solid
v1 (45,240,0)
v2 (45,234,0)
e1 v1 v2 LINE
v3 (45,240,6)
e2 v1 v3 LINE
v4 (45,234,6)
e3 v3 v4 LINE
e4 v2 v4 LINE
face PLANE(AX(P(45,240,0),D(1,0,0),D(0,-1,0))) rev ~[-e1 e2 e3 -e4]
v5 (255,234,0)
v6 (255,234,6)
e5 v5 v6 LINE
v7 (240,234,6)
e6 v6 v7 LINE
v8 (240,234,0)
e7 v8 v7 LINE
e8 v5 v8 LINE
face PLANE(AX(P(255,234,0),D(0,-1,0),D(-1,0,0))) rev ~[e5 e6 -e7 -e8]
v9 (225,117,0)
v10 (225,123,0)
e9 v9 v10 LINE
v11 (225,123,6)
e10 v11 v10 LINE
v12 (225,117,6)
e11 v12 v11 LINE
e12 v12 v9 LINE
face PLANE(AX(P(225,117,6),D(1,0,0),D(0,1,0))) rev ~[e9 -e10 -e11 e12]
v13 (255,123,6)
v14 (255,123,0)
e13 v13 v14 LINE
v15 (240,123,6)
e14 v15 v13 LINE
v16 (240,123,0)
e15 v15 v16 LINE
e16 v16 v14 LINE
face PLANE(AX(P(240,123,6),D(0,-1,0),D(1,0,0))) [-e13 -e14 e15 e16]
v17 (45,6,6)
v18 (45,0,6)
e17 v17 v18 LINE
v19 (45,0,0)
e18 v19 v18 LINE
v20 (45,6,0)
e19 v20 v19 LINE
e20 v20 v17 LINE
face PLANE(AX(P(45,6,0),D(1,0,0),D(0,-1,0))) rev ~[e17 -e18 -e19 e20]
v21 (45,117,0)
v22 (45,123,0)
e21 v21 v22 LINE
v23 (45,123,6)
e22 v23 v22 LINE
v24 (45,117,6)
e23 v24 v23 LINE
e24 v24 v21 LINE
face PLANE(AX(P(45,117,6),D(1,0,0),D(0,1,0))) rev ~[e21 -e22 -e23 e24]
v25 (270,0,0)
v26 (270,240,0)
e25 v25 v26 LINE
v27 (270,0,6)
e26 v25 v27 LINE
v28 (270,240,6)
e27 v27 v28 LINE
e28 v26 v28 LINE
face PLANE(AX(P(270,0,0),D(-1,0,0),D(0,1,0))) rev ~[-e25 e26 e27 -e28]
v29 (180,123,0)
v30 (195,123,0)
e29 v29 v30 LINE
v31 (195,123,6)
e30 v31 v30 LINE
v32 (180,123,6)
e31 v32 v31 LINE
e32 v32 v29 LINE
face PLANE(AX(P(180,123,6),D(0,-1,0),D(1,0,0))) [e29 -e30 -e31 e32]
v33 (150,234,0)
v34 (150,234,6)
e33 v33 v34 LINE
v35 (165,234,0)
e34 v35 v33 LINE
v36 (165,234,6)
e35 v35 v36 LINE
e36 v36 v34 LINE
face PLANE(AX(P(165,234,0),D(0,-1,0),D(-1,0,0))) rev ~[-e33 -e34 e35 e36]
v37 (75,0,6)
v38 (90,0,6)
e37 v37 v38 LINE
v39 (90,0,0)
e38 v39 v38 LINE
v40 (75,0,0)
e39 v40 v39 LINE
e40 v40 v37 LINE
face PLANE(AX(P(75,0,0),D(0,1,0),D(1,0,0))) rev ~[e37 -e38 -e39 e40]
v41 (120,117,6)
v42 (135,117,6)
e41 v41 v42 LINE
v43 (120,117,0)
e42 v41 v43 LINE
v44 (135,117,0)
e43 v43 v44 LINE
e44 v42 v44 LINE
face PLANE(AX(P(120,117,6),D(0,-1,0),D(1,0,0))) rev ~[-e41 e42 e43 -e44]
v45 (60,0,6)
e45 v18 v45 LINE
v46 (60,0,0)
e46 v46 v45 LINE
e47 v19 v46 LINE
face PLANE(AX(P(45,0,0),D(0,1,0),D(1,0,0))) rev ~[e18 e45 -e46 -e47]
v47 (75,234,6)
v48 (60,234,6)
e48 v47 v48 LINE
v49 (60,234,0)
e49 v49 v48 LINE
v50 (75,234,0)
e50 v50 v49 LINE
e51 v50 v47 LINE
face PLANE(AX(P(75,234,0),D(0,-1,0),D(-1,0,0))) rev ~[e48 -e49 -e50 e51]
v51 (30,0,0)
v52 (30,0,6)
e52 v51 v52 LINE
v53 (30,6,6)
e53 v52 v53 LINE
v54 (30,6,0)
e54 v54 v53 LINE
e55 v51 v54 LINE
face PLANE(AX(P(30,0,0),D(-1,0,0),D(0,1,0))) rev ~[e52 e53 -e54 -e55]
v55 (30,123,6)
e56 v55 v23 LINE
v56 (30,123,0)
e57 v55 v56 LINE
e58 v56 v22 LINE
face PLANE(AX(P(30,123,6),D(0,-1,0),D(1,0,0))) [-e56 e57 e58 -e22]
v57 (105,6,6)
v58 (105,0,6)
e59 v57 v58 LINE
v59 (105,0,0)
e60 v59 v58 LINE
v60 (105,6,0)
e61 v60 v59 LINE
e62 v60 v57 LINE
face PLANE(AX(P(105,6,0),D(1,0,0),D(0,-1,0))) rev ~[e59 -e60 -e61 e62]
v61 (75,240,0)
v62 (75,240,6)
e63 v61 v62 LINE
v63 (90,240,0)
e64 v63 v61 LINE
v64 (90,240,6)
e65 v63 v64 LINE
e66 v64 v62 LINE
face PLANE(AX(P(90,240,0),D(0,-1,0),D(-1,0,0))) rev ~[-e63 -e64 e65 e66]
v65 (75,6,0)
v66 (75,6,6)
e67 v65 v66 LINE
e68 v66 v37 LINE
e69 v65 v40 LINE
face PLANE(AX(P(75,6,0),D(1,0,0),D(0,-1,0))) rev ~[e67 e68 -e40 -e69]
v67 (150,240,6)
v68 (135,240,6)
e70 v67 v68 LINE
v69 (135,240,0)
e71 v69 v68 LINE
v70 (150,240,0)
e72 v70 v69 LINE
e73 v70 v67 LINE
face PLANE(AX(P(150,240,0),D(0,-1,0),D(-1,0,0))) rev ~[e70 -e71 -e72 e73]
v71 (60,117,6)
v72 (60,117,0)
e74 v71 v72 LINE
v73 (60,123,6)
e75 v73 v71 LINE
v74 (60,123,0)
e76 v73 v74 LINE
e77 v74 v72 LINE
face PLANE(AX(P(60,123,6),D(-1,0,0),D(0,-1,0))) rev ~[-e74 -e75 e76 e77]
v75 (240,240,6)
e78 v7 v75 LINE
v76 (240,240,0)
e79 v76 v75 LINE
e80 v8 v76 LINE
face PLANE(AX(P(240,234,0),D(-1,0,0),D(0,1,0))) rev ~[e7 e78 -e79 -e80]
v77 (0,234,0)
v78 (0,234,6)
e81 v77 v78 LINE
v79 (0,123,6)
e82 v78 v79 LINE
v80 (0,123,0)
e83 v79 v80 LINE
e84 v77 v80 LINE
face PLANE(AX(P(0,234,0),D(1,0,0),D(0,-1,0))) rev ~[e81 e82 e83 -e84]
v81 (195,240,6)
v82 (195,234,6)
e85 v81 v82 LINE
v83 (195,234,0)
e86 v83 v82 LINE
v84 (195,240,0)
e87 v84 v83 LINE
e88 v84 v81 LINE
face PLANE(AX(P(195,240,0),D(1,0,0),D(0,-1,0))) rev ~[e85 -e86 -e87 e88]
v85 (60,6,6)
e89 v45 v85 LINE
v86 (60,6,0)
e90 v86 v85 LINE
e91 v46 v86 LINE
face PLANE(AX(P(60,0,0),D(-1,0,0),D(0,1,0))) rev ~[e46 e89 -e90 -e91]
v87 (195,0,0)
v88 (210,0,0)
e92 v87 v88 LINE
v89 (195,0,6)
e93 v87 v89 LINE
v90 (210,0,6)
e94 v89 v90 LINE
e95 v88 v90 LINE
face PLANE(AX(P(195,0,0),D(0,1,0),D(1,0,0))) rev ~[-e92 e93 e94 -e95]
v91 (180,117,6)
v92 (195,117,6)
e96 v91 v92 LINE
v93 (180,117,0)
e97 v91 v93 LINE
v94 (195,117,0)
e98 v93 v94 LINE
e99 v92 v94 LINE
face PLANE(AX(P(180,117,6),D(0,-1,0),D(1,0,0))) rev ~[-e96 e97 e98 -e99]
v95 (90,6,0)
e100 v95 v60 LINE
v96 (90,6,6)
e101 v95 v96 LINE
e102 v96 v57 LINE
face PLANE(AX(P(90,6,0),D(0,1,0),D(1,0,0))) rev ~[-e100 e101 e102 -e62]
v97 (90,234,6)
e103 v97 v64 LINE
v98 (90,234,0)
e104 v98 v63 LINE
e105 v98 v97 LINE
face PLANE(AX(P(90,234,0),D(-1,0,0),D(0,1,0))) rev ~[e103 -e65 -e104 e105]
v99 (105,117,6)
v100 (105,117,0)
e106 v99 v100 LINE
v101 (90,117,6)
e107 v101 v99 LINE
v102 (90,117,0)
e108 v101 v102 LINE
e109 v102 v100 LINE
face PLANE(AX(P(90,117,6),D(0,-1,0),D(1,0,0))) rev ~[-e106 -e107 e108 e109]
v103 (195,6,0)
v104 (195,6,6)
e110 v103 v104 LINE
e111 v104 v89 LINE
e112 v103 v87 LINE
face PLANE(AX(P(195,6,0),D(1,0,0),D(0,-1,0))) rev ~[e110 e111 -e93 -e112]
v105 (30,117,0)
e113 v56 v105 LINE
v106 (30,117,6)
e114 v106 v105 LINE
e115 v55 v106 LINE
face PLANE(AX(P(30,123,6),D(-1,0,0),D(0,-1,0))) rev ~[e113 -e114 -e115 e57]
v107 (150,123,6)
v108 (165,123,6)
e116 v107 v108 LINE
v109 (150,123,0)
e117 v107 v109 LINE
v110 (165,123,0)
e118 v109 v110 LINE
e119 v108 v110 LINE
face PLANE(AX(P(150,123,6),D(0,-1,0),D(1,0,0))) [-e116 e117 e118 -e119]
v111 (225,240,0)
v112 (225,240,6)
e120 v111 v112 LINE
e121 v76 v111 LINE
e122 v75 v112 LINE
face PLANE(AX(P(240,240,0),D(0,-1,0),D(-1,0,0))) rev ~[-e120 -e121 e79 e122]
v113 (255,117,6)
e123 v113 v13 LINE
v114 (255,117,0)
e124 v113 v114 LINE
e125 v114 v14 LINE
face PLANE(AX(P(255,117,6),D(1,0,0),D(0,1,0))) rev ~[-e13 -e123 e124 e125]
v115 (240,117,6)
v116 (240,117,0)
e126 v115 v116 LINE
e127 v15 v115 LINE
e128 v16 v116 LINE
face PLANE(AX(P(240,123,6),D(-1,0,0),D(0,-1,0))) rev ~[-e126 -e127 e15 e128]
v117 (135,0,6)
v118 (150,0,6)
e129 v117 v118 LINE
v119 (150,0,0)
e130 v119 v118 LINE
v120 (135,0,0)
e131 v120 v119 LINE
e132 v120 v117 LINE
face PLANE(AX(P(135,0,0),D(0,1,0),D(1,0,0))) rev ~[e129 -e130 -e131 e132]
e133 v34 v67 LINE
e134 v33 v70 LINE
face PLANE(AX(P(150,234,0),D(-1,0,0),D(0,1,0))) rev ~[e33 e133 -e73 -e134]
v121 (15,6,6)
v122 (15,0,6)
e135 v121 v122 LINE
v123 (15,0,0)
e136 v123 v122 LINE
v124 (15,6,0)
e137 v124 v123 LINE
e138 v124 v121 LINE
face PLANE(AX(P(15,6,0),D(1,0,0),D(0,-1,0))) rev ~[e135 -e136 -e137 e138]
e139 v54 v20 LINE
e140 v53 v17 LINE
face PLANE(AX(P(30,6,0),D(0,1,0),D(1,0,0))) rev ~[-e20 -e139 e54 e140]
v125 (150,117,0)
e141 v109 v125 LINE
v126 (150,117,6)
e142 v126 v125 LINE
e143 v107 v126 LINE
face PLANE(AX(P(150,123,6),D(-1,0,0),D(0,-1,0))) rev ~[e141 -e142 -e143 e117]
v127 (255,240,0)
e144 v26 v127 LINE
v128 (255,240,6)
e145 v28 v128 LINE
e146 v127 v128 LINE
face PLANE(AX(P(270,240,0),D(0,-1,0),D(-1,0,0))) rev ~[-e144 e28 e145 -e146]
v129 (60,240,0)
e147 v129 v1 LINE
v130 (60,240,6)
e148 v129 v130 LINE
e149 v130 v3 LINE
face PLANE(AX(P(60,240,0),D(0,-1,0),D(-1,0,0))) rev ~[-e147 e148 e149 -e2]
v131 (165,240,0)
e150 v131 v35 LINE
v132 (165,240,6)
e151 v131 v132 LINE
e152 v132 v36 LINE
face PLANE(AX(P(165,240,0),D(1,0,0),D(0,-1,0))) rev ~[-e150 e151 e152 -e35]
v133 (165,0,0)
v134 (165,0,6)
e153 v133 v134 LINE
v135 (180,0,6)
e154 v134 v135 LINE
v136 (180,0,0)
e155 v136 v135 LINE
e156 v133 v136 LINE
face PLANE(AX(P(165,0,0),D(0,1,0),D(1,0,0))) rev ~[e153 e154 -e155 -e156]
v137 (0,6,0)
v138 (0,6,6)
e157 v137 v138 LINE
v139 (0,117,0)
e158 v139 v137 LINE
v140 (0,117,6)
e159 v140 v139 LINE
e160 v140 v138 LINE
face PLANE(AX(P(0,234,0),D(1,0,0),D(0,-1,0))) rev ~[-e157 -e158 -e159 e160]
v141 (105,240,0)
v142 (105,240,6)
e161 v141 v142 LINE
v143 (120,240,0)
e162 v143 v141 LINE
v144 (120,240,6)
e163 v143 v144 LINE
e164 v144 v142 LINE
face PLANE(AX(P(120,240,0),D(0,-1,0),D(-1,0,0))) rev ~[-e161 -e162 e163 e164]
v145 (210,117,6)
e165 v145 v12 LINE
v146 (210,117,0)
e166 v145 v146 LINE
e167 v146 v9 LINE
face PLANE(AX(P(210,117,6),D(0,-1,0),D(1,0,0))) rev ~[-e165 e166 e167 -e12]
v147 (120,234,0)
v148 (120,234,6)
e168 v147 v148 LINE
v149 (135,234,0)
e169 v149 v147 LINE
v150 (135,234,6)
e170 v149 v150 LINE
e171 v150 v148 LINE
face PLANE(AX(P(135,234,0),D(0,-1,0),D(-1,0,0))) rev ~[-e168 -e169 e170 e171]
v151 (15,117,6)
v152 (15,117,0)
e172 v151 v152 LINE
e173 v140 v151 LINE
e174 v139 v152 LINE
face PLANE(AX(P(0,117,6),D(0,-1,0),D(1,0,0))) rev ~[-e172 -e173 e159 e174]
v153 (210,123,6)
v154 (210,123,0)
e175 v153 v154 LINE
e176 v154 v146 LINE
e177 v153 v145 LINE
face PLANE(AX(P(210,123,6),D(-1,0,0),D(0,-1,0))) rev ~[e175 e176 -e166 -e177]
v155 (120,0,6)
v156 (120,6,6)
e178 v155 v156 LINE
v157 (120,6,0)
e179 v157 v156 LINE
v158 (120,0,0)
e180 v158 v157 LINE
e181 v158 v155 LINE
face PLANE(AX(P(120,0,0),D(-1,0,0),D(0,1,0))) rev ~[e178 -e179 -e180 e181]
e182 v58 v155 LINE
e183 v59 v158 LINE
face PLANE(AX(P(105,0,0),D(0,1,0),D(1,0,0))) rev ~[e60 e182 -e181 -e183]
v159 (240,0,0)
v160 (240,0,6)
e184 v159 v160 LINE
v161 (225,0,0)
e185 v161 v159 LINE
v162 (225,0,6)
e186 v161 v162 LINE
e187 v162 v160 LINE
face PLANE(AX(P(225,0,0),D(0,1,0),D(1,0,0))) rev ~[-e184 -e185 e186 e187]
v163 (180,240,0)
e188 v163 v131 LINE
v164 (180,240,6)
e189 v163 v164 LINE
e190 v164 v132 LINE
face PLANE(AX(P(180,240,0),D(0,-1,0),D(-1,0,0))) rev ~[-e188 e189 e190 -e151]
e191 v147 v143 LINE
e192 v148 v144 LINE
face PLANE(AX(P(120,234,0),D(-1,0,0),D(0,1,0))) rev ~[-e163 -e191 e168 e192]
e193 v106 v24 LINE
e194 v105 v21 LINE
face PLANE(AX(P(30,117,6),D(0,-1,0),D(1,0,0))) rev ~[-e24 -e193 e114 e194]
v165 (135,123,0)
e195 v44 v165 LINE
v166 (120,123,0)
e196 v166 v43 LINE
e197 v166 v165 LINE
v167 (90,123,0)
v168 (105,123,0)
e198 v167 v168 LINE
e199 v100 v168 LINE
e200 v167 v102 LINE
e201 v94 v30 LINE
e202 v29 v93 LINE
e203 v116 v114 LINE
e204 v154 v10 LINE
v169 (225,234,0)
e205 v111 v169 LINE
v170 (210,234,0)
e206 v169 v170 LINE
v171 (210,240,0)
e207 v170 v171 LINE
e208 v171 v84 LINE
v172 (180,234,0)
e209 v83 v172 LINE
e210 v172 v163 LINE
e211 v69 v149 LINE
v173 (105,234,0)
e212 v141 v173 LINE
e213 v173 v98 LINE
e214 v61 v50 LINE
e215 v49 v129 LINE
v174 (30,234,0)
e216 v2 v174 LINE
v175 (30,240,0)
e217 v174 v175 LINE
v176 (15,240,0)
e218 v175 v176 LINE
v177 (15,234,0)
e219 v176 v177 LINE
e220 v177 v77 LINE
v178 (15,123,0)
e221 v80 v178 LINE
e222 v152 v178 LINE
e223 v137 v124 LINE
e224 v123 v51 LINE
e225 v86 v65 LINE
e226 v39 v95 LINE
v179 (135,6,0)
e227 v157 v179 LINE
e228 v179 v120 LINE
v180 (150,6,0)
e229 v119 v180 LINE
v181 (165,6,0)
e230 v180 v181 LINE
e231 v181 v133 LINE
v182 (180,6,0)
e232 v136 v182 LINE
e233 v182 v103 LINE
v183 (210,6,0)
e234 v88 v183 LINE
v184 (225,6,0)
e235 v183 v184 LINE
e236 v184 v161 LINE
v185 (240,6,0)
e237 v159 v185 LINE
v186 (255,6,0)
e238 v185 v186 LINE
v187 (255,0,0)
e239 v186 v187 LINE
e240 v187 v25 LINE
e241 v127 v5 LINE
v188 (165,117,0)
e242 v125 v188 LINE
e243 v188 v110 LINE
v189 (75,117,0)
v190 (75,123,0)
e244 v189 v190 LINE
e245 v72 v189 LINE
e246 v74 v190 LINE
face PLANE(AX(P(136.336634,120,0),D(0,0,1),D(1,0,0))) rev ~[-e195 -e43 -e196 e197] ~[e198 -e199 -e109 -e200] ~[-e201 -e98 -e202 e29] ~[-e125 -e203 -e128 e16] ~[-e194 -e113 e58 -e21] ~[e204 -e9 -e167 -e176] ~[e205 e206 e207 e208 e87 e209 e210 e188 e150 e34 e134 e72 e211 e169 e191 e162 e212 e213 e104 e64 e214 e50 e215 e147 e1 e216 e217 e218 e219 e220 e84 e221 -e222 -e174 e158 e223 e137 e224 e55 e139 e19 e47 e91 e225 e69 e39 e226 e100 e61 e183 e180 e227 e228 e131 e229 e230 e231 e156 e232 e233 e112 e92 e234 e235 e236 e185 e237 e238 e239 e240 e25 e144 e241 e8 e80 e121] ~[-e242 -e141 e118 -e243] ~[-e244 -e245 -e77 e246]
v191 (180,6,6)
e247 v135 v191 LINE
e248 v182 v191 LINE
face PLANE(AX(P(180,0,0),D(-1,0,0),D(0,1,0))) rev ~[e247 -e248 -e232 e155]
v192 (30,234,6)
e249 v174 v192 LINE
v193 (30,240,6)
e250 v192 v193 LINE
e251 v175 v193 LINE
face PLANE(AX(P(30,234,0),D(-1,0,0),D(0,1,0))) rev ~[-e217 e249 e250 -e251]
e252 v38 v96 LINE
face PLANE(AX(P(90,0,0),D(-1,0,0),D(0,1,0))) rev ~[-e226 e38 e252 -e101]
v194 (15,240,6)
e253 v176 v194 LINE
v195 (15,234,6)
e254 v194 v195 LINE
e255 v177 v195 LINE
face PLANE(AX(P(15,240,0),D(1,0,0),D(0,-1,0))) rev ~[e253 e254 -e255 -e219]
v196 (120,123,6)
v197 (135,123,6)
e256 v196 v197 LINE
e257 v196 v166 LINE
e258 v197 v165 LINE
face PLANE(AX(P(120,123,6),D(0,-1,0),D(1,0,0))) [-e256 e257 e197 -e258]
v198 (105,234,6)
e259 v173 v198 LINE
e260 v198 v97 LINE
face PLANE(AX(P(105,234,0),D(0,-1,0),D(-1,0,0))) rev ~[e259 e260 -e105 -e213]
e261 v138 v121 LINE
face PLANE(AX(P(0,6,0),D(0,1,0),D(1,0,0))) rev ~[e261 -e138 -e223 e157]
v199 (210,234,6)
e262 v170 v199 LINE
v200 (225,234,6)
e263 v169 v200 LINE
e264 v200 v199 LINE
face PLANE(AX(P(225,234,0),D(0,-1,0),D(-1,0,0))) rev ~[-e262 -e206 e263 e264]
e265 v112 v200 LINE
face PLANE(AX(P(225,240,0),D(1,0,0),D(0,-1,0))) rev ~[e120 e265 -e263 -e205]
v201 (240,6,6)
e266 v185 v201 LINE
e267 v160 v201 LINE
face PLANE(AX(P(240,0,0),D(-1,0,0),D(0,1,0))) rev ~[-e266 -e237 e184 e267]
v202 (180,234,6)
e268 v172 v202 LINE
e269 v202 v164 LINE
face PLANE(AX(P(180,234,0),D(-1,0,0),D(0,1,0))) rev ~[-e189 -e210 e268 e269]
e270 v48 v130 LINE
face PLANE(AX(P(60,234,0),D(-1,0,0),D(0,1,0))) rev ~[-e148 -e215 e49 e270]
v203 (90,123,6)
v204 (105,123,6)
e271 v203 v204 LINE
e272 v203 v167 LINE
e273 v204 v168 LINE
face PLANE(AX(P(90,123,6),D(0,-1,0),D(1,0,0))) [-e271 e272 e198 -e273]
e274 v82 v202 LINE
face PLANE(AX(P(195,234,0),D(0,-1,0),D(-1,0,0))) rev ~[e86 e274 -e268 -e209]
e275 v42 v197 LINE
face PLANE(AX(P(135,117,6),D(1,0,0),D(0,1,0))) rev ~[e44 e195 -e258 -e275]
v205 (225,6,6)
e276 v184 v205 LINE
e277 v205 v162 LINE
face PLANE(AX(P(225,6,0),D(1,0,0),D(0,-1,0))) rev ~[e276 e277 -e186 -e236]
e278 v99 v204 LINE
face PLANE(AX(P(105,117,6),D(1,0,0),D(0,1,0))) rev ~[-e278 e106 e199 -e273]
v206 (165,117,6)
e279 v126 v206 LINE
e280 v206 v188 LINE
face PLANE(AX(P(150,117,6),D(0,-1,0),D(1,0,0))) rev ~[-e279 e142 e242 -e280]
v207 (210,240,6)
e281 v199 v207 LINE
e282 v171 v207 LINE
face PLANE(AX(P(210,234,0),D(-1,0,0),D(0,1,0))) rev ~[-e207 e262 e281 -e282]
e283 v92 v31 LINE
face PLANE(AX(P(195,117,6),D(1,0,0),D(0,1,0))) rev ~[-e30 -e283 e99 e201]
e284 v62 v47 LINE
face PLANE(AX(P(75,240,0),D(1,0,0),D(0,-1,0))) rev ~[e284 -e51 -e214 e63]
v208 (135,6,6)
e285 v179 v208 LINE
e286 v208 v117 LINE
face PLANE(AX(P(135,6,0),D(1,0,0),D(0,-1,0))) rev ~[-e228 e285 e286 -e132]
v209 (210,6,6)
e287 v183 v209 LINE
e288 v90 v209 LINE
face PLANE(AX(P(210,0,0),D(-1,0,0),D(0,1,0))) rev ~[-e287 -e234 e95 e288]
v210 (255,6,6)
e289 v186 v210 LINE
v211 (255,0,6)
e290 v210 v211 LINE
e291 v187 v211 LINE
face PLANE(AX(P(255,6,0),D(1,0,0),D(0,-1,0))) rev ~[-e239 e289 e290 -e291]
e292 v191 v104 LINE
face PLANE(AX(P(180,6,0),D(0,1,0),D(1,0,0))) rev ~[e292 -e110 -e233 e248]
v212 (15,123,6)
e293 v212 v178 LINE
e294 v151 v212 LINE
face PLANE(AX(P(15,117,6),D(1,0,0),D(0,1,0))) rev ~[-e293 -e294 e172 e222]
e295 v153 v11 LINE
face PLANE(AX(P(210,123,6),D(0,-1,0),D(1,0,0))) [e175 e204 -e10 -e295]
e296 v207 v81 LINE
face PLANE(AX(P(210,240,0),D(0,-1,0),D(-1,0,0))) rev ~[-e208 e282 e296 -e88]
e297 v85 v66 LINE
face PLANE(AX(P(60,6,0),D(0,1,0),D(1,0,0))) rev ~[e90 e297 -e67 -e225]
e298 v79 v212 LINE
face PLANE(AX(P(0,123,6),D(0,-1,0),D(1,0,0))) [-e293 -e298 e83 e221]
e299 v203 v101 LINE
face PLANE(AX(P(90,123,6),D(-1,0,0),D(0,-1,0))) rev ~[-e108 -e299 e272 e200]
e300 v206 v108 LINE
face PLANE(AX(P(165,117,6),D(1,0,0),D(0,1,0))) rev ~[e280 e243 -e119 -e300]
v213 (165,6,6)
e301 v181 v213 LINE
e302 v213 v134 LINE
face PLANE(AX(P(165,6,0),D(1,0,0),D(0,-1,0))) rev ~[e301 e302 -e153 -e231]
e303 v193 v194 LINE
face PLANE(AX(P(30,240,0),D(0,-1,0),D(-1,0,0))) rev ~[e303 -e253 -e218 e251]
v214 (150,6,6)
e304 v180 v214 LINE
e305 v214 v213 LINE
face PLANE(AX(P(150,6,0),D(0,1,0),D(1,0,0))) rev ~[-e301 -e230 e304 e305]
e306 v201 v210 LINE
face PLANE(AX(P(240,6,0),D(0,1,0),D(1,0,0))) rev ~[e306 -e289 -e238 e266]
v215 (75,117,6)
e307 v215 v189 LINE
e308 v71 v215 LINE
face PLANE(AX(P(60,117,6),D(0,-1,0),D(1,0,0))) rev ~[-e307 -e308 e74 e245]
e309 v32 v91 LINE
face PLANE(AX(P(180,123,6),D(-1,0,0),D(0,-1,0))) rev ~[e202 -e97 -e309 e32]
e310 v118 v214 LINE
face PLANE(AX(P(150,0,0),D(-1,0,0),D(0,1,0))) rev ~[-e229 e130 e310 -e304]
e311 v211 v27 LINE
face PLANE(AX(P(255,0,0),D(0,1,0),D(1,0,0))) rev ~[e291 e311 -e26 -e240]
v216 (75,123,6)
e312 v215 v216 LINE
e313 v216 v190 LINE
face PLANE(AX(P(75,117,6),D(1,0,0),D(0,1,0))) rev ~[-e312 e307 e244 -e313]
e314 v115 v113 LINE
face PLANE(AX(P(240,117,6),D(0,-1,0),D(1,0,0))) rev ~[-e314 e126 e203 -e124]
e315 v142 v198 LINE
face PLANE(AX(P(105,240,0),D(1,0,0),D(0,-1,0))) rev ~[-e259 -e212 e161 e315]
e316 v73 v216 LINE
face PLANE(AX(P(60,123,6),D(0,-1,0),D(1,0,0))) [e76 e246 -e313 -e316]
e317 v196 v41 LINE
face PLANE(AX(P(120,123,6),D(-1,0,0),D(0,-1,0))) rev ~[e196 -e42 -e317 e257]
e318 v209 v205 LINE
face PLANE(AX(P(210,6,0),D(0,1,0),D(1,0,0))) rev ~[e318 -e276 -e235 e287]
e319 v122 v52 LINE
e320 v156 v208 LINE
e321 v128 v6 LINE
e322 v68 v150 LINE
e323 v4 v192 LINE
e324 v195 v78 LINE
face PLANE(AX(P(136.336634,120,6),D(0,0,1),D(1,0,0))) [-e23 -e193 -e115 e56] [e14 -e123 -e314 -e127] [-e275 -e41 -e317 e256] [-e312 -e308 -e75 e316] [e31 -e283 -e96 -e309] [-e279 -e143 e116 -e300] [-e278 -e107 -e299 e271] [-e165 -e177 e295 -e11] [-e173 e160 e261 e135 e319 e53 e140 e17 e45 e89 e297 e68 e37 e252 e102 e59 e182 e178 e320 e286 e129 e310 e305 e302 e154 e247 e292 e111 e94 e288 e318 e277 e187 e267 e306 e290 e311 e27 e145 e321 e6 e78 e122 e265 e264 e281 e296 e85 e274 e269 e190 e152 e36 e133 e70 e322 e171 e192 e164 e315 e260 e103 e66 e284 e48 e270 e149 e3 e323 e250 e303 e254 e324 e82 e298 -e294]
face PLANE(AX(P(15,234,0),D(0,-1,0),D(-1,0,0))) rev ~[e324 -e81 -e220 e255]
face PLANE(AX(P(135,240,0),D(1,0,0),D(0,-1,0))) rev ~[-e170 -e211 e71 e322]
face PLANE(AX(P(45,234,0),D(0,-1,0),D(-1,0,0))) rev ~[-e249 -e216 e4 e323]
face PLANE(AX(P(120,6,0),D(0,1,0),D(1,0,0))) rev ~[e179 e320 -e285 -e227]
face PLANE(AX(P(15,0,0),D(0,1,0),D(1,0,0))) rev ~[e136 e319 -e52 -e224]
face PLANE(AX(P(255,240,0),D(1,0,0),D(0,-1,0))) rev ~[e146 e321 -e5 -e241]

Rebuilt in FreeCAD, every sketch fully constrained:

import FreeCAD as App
import Part
import Sketcher

doc = App.newDocument("Part")
body = doc.addObject("PartDesign::Body", "Body")

# Sketch on XY plane
sketch1 = doc.addObject("Sketcher::SketchObject", "Sketch")
body.addObject(sketch1)
sketch1.AttachmentSupport = (doc.XY_Plane, [""])
sketch1.MapMode = "FlatFace"
sketch1.addGeometry([
    Part.LineSegment(App.Vector(15, 6, 0), App.Vector(15, 0, 0)),  # 0
    Part.LineSegment(App.Vector(15, 0, 0), App.Vector(30, 0, 0)),  # 1
    Part.LineSegment(App.Vector(30, 0, 0), App.Vector(30, 6, 0)),  # 2
    Part.LineSegment(App.Vector(30, 6, 0), App.Vector(45, 6, 0)),  # 3
    Part.LineSegment(App.Vector(45, 6, 0), App.Vector(45, 0, 0)),  # 4
    Part.LineSegment(App.Vector(45, 0, 0), App.Vector(60, 0, 0)),  # 5
    Part.LineSegment(App.Vector(60, 0, 0), App.Vector(60, 6, 0)),  # 6
    Part.LineSegment(App.Vector(60, 6, 0), App.Vector(75, 6, 0)),  # 7
    Part.LineSegment(App.Vector(75, 6, 0), App.Vector(75, 0, 0)),  # 8
    Part.LineSegment(App.Vector(75, 0, 0), App.Vector(90, 0, 0)),  # 9
    Part.LineSegment(App.Vector(90, 0, 0), App.Vector(90, 6, 0)),  # 10
    Part.LineSegment(App.Vector(90, 6, 0), App.Vector(105, 6, 0)),  # 11
    Part.LineSegment(App.Vector(105, 6, 0), App.Vector(105, 0, 0)),  # 12
    Part.LineSegment(App.Vector(105, 0, 0), App.Vector(120, 0, 0)),  # 13
    Part.LineSegment(App.Vector(120, 0, 0), App.Vector(120, 6, 0)),  # 14
    Part.LineSegment(App.Vector(120, 6, 0), App.Vector(135, 6, 0)),  # 15
    Part.LineSegment(App.Vector(135, 6, 0), App.Vector(135, 0, 0)),  # 16
    Part.LineSegment(App.Vector(135, 0, 0), App.Vector(150, 0, 0)),  # 17
    Part.LineSegment(App.Vector(150, 0, 0), App.Vector(150, 6, 0)),  # 18
    Part.LineSegment(App.Vector(150, 6, 0), App.Vector(165, 6, 0)),  # 19
    Part.LineSegment(App.Vector(165, 6, 0), App.Vector(165, 0, 0)),  # 20
    Part.LineSegment(App.Vector(165, 0, 0), App.Vector(180, 0, 0)),  # 21
    Part.LineSegment(App.Vector(180, 0, 0), App.Vector(180, 6, 0)),  # 22
    Part.LineSegment(App.Vector(180, 6, 0), App.Vector(195, 6, 0)),  # 23
    Part.LineSegment(App.Vector(195, 6, 0), App.Vector(195, 0, 0)),  # 24
    Part.LineSegment(App.Vector(195, 0, 0), App.Vector(210, 0, 0)),  # 25
    Part.LineSegment(App.Vector(210, 0, 0), App.Vector(210, 6, 0)),  # 26
    Part.LineSegment(App.Vector(210, 6, 0), App.Vector(225, 6, 0)),  # 27
    Part.LineSegment(App.Vector(225, 6, 0), App.Vector(225, 0, 0)),  # 28
    Part.LineSegment(App.Vector(225, 0, 0), App.Vector(240, 0, 0)),  # 29
    Part.LineSegment(App.Vector(240, 0, 0), App.Vector(240, 6, 0)),  # 30
    Part.LineSegment(App.Vector(240, 6, 0), App.Vector(255, 6, 0)),  # 31
    Part.LineSegment(App.Vector(255, 6, 0), App.Vector(255, 0, 0)),  # 32
    Part.LineSegment(App.Vector(255, 0, 0), App.Vector(270, 0, 0)),  # 33
    Part.LineSegment(App.Vector(270, 0, 0), App.Vector(270, 240, 0)),  # 34
    Part.LineSegment(App.Vector(270, 240, 0), App.Vector(255, 240, 0)),  # 35
    Part.LineSegment(App.Vector(255, 240, 0), App.Vector(255, 234, 0)),  # 36
    Part.LineSegment(App.Vector(255, 234, 0), App.Vector(240, 234, 0)),  # 37
    Part.LineSegment(App.Vector(240, 234, 0), App.Vector(240, 240, 0)),  # 38
    Part.LineSegment(App.Vector(240, 240, 0), App.Vector(225, 240, 0)),  # 39
    Part.LineSegment(App.Vector(225, 240, 0), App.Vector(225, 234, 0)),  # 40
    Part.LineSegment(App.Vector(225, 234, 0), App.Vector(210, 234, 0)),  # 41
    Part.LineSegment(App.Vector(210, 234, 0), App.Vector(210, 240, 0)),  # 42
    Part.LineSegment(App.Vector(210, 240, 0), App.Vector(195, 240, 0)),  # 43
    Part.LineSegment(App.Vector(195, 240, 0), App.Vector(195, 234, 0)),  # 44
    Part.LineSegment(App.Vector(195, 234, 0), App.Vector(180, 234, 0)),  # 45
    Part.LineSegment(App.Vector(180, 234, 0), App.Vector(180, 240, 0)),  # 46
    Part.LineSegment(App.Vector(180, 240, 0), App.Vector(165, 240, 0)),  # 47
    Part.LineSegment(App.Vector(165, 240, 0), App.Vector(165, 234, 0)),  # 48
    Part.LineSegment(App.Vector(165, 234, 0), App.Vector(150, 234, 0)),  # 49
    Part.LineSegment(App.Vector(150, 234, 0), App.Vector(150, 240, 0)),  # 50
    Part.LineSegment(App.Vector(150, 240, 0), App.Vector(135, 240, 0)),  # 51
    Part.LineSegment(App.Vector(135, 240, 0), App.Vector(135, 234, 0)),  # 52
    Part.LineSegment(App.Vector(135, 234, 0), App.Vector(120, 234, 0)),  # 53
    Part.LineSegment(App.Vector(120, 234, 0), App.Vector(120, 240, 0)),  # 54
    Part.LineSegment(App.Vector(120, 240, 0), App.Vector(105, 240, 0)),  # 55
    Part.LineSegment(App.Vector(105, 240, 0), App.Vector(105, 234, 0)),  # 56
    Part.LineSegment(App.Vector(105, 234, 0), App.Vector(90, 234, 0)),  # 57
    Part.LineSegment(App.Vector(90, 234, 0), App.Vector(90, 240, 0)),  # 58
    Part.LineSegment(App.Vector(90, 240, 0), App.Vector(75, 240, 0)),  # 59
    Part.LineSegment(App.Vector(75, 240, 0), App.Vector(75, 234, 0)),  # 60
    Part.LineSegment(App.Vector(75, 234, 0), App.Vector(60, 234, 0)),  # 61
    Part.LineSegment(App.Vector(60, 234, 0), App.Vector(60, 240, 0)),  # 62
    Part.LineSegment(App.Vector(60, 240, 0), App.Vector(45, 240, 0)),  # 63
    Part.LineSegment(App.Vector(45, 240, 0), App.Vector(45, 234, 0)),  # 64
    Part.LineSegment(App.Vector(45, 234, 0), App.Vector(30, 234, 0)),  # 65
    Part.LineSegment(App.Vector(30, 234, 0), App.Vector(30, 240, 0)),  # 66
    Part.LineSegment(App.Vector(30, 240, 0), App.Vector(15, 240, 0)),  # 67
    Part.LineSegment(App.Vector(15, 240, 0), App.Vector(15, 234, 0)),  # 68
    Part.LineSegment(App.Vector(15, 234, 0), App.Vector(0, 234, 0)),  # 69
    Part.LineSegment(App.Vector(0, 234, 0), App.Vector(0, 6, 0)),  # 70
    Part.LineSegment(App.Vector(0, 6, 0), App.Vector(15, 6, 0)),  # 71
], False)
sketch1.addConstraint([
    Sketcher.Constraint("Coincident", 0, 2, 1, 1),
    Sketcher.Constraint("Coincident", 1, 2, 2, 1),
    Sketcher.Constraint("Coincident", 2, 2, 3, 1),
    Sketcher.Constraint("Coincident", 3, 2, 4, 1),
    Sketcher.Constraint("Coincident", 4, 2, 5, 1),
    Sketcher.Constraint("Coincident", 5, 2, 6, 1),
    Sketcher.Constraint("Coincident", 6, 2, 7, 1),
    Sketcher.Constraint("Coincident", 7, 2, 8, 1),
    Sketcher.Constraint("Coincident", 8, 2, 9, 1),
    Sketcher.Constraint("Coincident", 9, 2, 10, 1),
    Sketcher.Constraint("Coincident", 10, 2, 11, 1),
    Sketcher.Constraint("Coincident", 11, 2, 12, 1),
    Sketcher.Constraint("Coincident", 12, 2, 13, 1),
    Sketcher.Constraint("Coincident", 13, 2, 14, 1),
    Sketcher.Constraint("Coincident", 14, 2, 15, 1),
    Sketcher.Constraint("Coincident", 15, 2, 16, 1),
    Sketcher.Constraint("Coincident", 16, 2, 17, 1),
    Sketcher.Constraint("Coincident", 17, 2, 18, 1),
    Sketcher.Constraint("Coincident", 18, 2, 19, 1),
    Sketcher.Constraint("Coincident", 19, 2, 20, 1),
    Sketcher.Constraint("Coincident", 20, 2, 21, 1),
    Sketcher.Constraint("Coincident", 21, 2, 22, 1),
    Sketcher.Constraint("Coincident", 22, 2, 23, 1),
    Sketcher.Constraint("Coincident", 23, 2, 24, 1),
    Sketcher.Constraint("Coincident", 24, 2, 25, 1),
    Sketcher.Constraint("Coincident", 25, 2, 26, 1),
    Sketcher.Constraint("Coincident", 26, 2, 27, 1),
    Sketcher.Constraint("Coincident", 27, 2, 28, 1),
    Sketcher.Constraint("Coincident", 28, 2, 29, 1),
    Sketcher.Constraint("Coincident", 29, 2, 30, 1),
    Sketcher.Constraint("Coincident", 30, 2, 31, 1),
    Sketcher.Constraint("Coincident", 31, 2, 32, 1),
    Sketcher.Constraint("Coincident", 32, 2, 33, 1),
    Sketcher.Constraint("Coincident", 33, 2, 34, 1),
    Sketcher.Constraint("Coincident", 34, 2, 35, 1),
    Sketcher.Constraint("Coincident", 35, 2, 36, 1),
    Sketcher.Constraint("Coincident", 36, 2, 37, 1),
    Sketcher.Constraint("Coincident", 37, 2, 38, 1),
    Sketcher.Constraint("Coincident", 38, 2, 39, 1),
    Sketcher.Constraint("Coincident", 39, 2, 40, 1),
    Sketcher.Constraint("Coincident", 40, 2, 41, 1),
    Sketcher.Constraint("Coincident", 41, 2, 42, 1),
    Sketcher.Constraint("Coincident", 42, 2, 43, 1),
    Sketcher.Constraint("Coincident", 43, 2, 44, 1),
    Sketcher.Constraint("Coincident", 44, 2, 45, 1),
    Sketcher.Constraint("Coincident", 45, 2, 46, 1),
    Sketcher.Constraint("Coincident", 46, 2, 47, 1),
    Sketcher.Constraint("Coincident", 47, 2, 48, 1),
    Sketcher.Constraint("Coincident", 48, 2, 49, 1),
    Sketcher.Constraint("Coincident", 49, 2, 50, 1),
    Sketcher.Constraint("Coincident", 50, 2, 51, 1),
    Sketcher.Constraint("Coincident", 51, 2, 52, 1),
    Sketcher.Constraint("Coincident", 52, 2, 53, 1),
    Sketcher.Constraint("Coincident", 53, 2, 54, 1),
    Sketcher.Constraint("Coincident", 54, 2, 55, 1),
    Sketcher.Constraint("Coincident", 55, 2, 56, 1),
    Sketcher.Constraint("Coincident", 56, 2, 57, 1),
    Sketcher.Constraint("Coincident", 57, 2, 58, 1),
    Sketcher.Constraint("Coincident", 58, 2, 59, 1),
    Sketcher.Constraint("Coincident", 59, 2, 60, 1),
    Sketcher.Constraint("Coincident", 60, 2, 61, 1),
    Sketcher.Constraint("Coincident", 61, 2, 62, 1),
    Sketcher.Constraint("Coincident", 62, 2, 63, 1),
    Sketcher.Constraint("Coincident", 63, 2, 64, 1),
    Sketcher.Constraint("Coincident", 64, 2, 65, 1),
    Sketcher.Constraint("Coincident", 65, 2, 66, 1),
    Sketcher.Constraint("Coincident", 66, 2, 67, 1),
    Sketcher.Constraint("Coincident", 67, 2, 68, 1),
    Sketcher.Constraint("Coincident", 68, 2, 69, 1),
    Sketcher.Constraint("Coincident", 69, 2, 70, 1),
    Sketcher.Constraint("Coincident", 70, 2, 71, 1),
    Sketcher.Constraint("Coincident", 71, 2, 0, 1),
    Sketcher.Constraint("Vertical", 0),
    Sketcher.Constraint("Horizontal", 1),
    Sketcher.Constraint("Vertical", 2),
    Sketcher.Constraint("Horizontal", 3),
    Sketcher.Constraint("Vertical", 4),
    Sketcher.Constraint("Horizontal", 5),
    Sketcher.Constraint("Vertical", 6),
    Sketcher.Constraint("Horizontal", 7),
    Sketcher.Constraint("Vertical", 8),
    Sketcher.Constraint("Horizontal", 9),
    Sketcher.Constraint("Vertical", 10),
    Sketcher.Constraint("Horizontal", 11),
    Sketcher.Constraint("Vertical", 12),
    Sketcher.Constraint("Horizontal", 13),
    Sketcher.Constraint("Vertical", 14),
    Sketcher.Constraint("Horizontal", 15),
    Sketcher.Constraint("Vertical", 16),
    Sketcher.Constraint("Horizontal", 17),
    Sketcher.Constraint("Vertical", 18),
    Sketcher.Constraint("Horizontal", 19),
    Sketcher.Constraint("Vertical", 20),
    Sketcher.Constraint("Horizontal", 21),
    Sketcher.Constraint("Vertical", 22),
    Sketcher.Constraint("Horizontal", 23),
    Sketcher.Constraint("Vertical", 24),
    Sketcher.Constraint("Horizontal", 25),
    Sketcher.Constraint("Vertical", 26),
    Sketcher.Constraint("Horizontal", 27),
    Sketcher.Constraint("Vertical", 28),
    Sketcher.Constraint("Horizontal", 29),
    Sketcher.Constraint("Vertical", 30),
    Sketcher.Constraint("Horizontal", 31),
    Sketcher.Constraint("Vertical", 32),
    Sketcher.Constraint("Horizontal", 33),
    Sketcher.Constraint("Vertical", 34),
    Sketcher.Constraint("Horizontal", 35),
    Sketcher.Constraint("Vertical", 36),
    Sketcher.Constraint("Horizontal", 37),
    Sketcher.Constraint("Vertical", 38),
    Sketcher.Constraint("Horizontal", 39),
    Sketcher.Constraint("Vertical", 40),
    Sketcher.Constraint("Horizontal", 41),
    Sketcher.Constraint("Vertical", 42),
    Sketcher.Constraint("Horizontal", 43),
    Sketcher.Constraint("Vertical", 44),
    Sketcher.Constraint("Horizontal", 45),
    Sketcher.Constraint("Vertical", 46),
    Sketcher.Constraint("Horizontal", 47),
    Sketcher.Constraint("Vertical", 48),
    Sketcher.Constraint("Horizontal", 49),
    Sketcher.Constraint("Vertical", 50),
    Sketcher.Constraint("Horizontal", 51),
    Sketcher.Constraint("Vertical", 52),
    Sketcher.Constraint("Horizontal", 53),
    Sketcher.Constraint("Vertical", 54),
    Sketcher.Constraint("Horizontal", 55),
    Sketcher.Constraint("Vertical", 56),
    Sketcher.Constraint("Horizontal", 57),
    Sketcher.Constraint("Vertical", 58),
    Sketcher.Constraint("Horizontal", 59),
    Sketcher.Constraint("Vertical", 60),
    Sketcher.Constraint("Horizontal", 61),
    Sketcher.Constraint("Vertical", 62),
    Sketcher.Constraint("Horizontal", 63),
    Sketcher.Constraint("Vertical", 64),
    Sketcher.Constraint("Horizontal", 65),
    Sketcher.Constraint("Vertical", 66),
    Sketcher.Constraint("Horizontal", 67),
    Sketcher.Constraint("Vertical", 68),
    Sketcher.Constraint("Horizontal", 69),
    Sketcher.Constraint("Vertical", 70),
    Sketcher.Constraint("Horizontal", 71),
    Sketcher.Constraint("PointOnObject", 0, 2, -1),
    Sketcher.Constraint("PointOnObject", 4, 2, -1),
    Sketcher.Constraint("PointOnObject", 8, 2, -1),
    Sketcher.Constraint("PointOnObject", 12, 2, -1),
    Sketcher.Constraint("PointOnObject", 16, 2, -1),
    Sketcher.Constraint("PointOnObject", 20, 2, -1),
    Sketcher.Constraint("PointOnObject", 24, 2, -1),
    Sketcher.Constraint("PointOnObject", 28, 2, -1),
    Sketcher.Constraint("PointOnObject", 32, 2, -1),
    Sketcher.Constraint("PointOnObject", 69, 2, -2),
    Sketcher.Constraint("Horizontal", 3, 2, 6, 2),
    Sketcher.Constraint("Horizontal", 7, 2, 10, 2),
    Sketcher.Constraint("Horizontal", 11, 2, 14, 2),
    Sketcher.Constraint("Horizontal", 15, 2, 18, 2),
    Sketcher.Constraint("Horizontal", 19, 2, 22, 2),
    Sketcher.Constraint("Horizontal", 23, 2, 26, 2),
    Sketcher.Constraint("Horizontal", 27, 2, 30, 2),
    Sketcher.Constraint("Horizontal", 35, 2, 38, 2),
    Sketcher.Constraint("Horizontal", 37, 2, 40, 2),
    Sketcher.Constraint("Horizontal", 39, 2, 42, 2),
    Sketcher.Constraint("Horizontal", 41, 2, 44, 2),
    Sketcher.Constraint("Horizontal", 43, 2, 46, 2),
    Sketcher.Constraint("Horizontal", 45, 2, 48, 2),
    Sketcher.Constraint("Horizontal", 47, 2, 50, 2),
    Sketcher.Constraint("Horizontal", 49, 2, 52, 2),
    Sketcher.Constraint("Horizontal", 51, 2, 54, 2),
    Sketcher.Constraint("Horizontal", 53, 2, 56, 2),
    Sketcher.Constraint("Horizontal", 55, 2, 58, 2),
    Sketcher.Constraint("Horizontal", 57, 2, 60, 2),
    Sketcher.Constraint("Horizontal", 59, 2, 62, 2),
    Sketcher.Constraint("Horizontal", 61, 2, 64, 2),
    Sketcher.Constraint("Horizontal", 63, 2, 66, 2),
    Sketcher.Constraint("Horizontal", 65, 2, 68, 2),
    Sketcher.Constraint("Horizontal", 31, 2, 70, 2),
    Sketcher.Constraint("Vertical", 32, 2, 35, 2),
    Sketcher.Constraint("Vertical", 30, 2, 37, 2),
    Sketcher.Constraint("Vertical", 28, 2, 39, 2),
    Sketcher.Constraint("Vertical", 26, 2, 41, 2),
    Sketcher.Constraint("Vertical", 24, 2, 43, 2),
    Sketcher.Constraint("Vertical", 22, 2, 45, 2),
    Sketcher.Constraint("Vertical", 20, 2, 47, 2),
    Sketcher.Constraint("Vertical", 18, 2, 49, 2),
    Sketcher.Constraint("Vertical", 16, 2, 51, 2),
    Sketcher.Constraint("Vertical", 14, 2, 53, 2),
    Sketcher.Constraint("Vertical", 12, 2, 55, 2),
    Sketcher.Constraint("Vertical", 10, 2, 57, 2),
    Sketcher.Constraint("Vertical", 8, 2, 59, 2),
    Sketcher.Constraint("Vertical", 6, 2, 61, 2),
    Sketcher.Constraint("Vertical", 4, 2, 63, 2),
    Sketcher.Constraint("Vertical", 2, 2, 65, 2),
    Sketcher.Constraint("Vertical", 0, 2, 67, 2),
    Sketcher.Constraint("Equal", 1, 3),
    Sketcher.Constraint("Equal", 3, 5),
    Sketcher.Constraint("Equal", 5, 7),
    Sketcher.Constraint("Equal", 7, 9),
    Sketcher.Constraint("Equal", 9, 11),
    Sketcher.Constraint("Equal", 11, 13),
    Sketcher.Constraint("Equal", 13, 15),
    Sketcher.Constraint("Equal", 15, 17),
    Sketcher.Constraint("Equal", 17, 19),
    Sketcher.Constraint("Equal", 19, 21),
    Sketcher.Constraint("Equal", 21, 23),
    Sketcher.Constraint("Equal", 23, 25),
    Sketcher.Constraint("Equal", 25, 27),
    Sketcher.Constraint("Equal", 27, 29),
    Sketcher.Constraint("Equal", 29, 31),
    Sketcher.Constraint("Equal", 31, 33),
    Sketcher.Constraint("Equal", 67, 69),
    Sketcher.Constraint("Equal", 32, 36),
    Sketcher.Constraint("DistanceX", 1, 1, 1, 2, 15.0),
    Sketcher.Constraint("DistanceY", 0, 2, 0, 1, 6.0),
    Sketcher.Constraint("DistanceY", 34, 1, 34, 2, 240.0),
])
pad1 = doc.addObject("PartDesign::Pad", "Pad")
body.addObject(pad1)
pad1.Profile = sketch1
pad1.Length = 6

# Sketch on XY plane
sketch2 = doc.addObject("Sketcher::SketchObject", "Sketch001")
body.addObject(sketch2)
sketch2.AttachmentSupport = (doc.XY_Plane, [""])
sketch2.MapMode = "FlatFace"
sketch2.AttachmentOffset = App.Placement(App.Vector(0, 0, 6), App.Rotation())
sketch2.addGeometry([
    Part.LineSegment(App.Vector(0, 123, 0), App.Vector(0, 117, 0)),  # 0
    Part.LineSegment(App.Vector(0, 117, 0), App.Vector(15, 117, 0)),  # 1
    Part.LineSegment(App.Vector(15, 117, 0), App.Vector(15, 123, 0)),  # 2
    Part.LineSegment(App.Vector(15, 123, 0), App.Vector(0, 123, 0)),  # 3
    Part.LineSegment(App.Vector(30, 123, 0), App.Vector(30, 117, 0)),  # 4
    Part.LineSegment(App.Vector(30, 117, 0), App.Vector(45, 117, 0)),  # 5
    Part.LineSegment(App.Vector(45, 117, 0), App.Vector(45, 123, 0)),  # 6
    Part.LineSegment(App.Vector(45, 123, 0), App.Vector(30, 123, 0)),  # 7
    Part.LineSegment(App.Vector(60, 123, 0), App.Vector(60, 117, 0)),  # 8
    Part.LineSegment(App.Vector(60, 117, 0), App.Vector(75, 117, 0)),  # 9
    Part.LineSegment(App.Vector(75, 117, 0), App.Vector(75, 123, 0)),  # 10
    Part.LineSegment(App.Vector(75, 123, 0), App.Vector(60, 123, 0)),  # 11
    Part.LineSegment(App.Vector(90, 123, 0), App.Vector(90, 117, 0)),  # 12
    Part.LineSegment(App.Vector(90, 117, 0), App.Vector(105, 117, 0)),  # 13
    Part.LineSegment(App.Vector(105, 117, 0), App.Vector(105, 123, 0)),  # 14
    Part.LineSegment(App.Vector(105, 123, 0), App.Vector(90, 123, 0)),  # 15
    Part.LineSegment(App.Vector(120, 123, 0), App.Vector(120, 117, 0)),  # 16
    Part.LineSegment(App.Vector(120, 117, 0), App.Vector(135, 117, 0)),  # 17
    Part.LineSegment(App.Vector(135, 117, 0), App.Vector(135, 123, 0)),  # 18
    Part.LineSegment(App.Vector(135, 123, 0), App.Vector(120, 123, 0)),  # 19
    Part.LineSegment(App.Vector(150, 123, 0), App.Vector(150, 117, 0)),  # 20
    Part.LineSegment(App.Vector(150, 117, 0), App.Vector(165, 117, 0)),  # 21
    Part.LineSegment(App.Vector(165, 117, 0), App.Vector(165, 123, 0)),  # 22
    Part.LineSegment(App.Vector(165, 123, 0), App.Vector(150, 123, 0)),  # 23
    Part.LineSegment(App.Vector(180, 123, 0), App.Vector(180, 117, 0)),  # 24
    Part.LineSegment(App.Vector(180, 117, 0), App.Vector(195, 117, 0)),  # 25
    Part.LineSegment(App.Vector(195, 117, 0), App.Vector(195, 123, 0)),  # 26
    Part.LineSegment(App.Vector(195, 123, 0), App.Vector(180, 123, 0)),  # 27
    Part.LineSegment(App.Vector(240, 123, 0), App.Vector(240, 117, 0)),  # 28
    Part.LineSegment(App.Vector(240, 117, 0), App.Vector(255, 117, 0)),  # 29
    Part.LineSegment(App.Vector(255, 117, 0), App.Vector(255, 123, 0)),  # 30
    Part.LineSegment(App.Vector(255, 123, 0), App.Vector(240, 123, 0)),  # 31
    Part.LineSegment(App.Vector(210, 117, 0), App.Vector(225, 117, 0)),  # 32
    Part.LineSegment(App.Vector(225, 117, 0), App.Vector(225, 123, 0)),  # 33
    Part.LineSegment(App.Vector(225, 123, 0), App.Vector(210, 123, 0)),  # 34
    Part.LineSegment(App.Vector(210, 123, 0), App.Vector(210, 117, 0)),  # 35
], False)
sketch2.addConstraint([
    Sketcher.Constraint("Coincident", 0, 2, 1, 1),
    Sketcher.Constraint("Coincident", 1, 2, 2, 1),
    Sketcher.Constraint("Coincident", 2, 2, 3, 1),
    Sketcher.Constraint("Coincident", 3, 2, 0, 1),
    Sketcher.Constraint("Coincident", 4, 2, 5, 1),
    Sketcher.Constraint("Coincident", 5, 2, 6, 1),
    Sketcher.Constraint("Coincident", 6, 2, 7, 1),
    Sketcher.Constraint("Coincident", 7, 2, 4, 1),
    Sketcher.Constraint("Coincident", 8, 2, 9, 1),
    Sketcher.Constraint("Coincident", 9, 2, 10, 1),
    Sketcher.Constraint("Coincident", 10, 2, 11, 1),
    Sketcher.Constraint("Coincident", 11, 2, 8, 1),
    Sketcher.Constraint("Coincident", 12, 2, 13, 1),
    Sketcher.Constraint("Coincident", 13, 2, 14, 1),
    Sketcher.Constraint("Coincident", 14, 2, 15, 1),
    Sketcher.Constraint("Coincident", 15, 2, 12, 1),
    Sketcher.Constraint("Coincident", 16, 2, 17, 1),
    Sketcher.Constraint("Coincident", 17, 2, 18, 1),
    Sketcher.Constraint("Coincident", 18, 2, 19, 1),
    Sketcher.Constraint("Coincident", 19, 2, 16, 1),
    Sketcher.Constraint("Coincident", 20, 2, 21, 1),
    Sketcher.Constraint("Coincident", 21, 2, 22, 1),
    Sketcher.Constraint("Coincident", 22, 2, 23, 1),
    Sketcher.Constraint("Coincident", 23, 2, 20, 1),
    Sketcher.Constraint("Coincident", 24, 2, 25, 1),
    Sketcher.Constraint("Coincident", 25, 2, 26, 1),
    Sketcher.Constraint("Coincident", 26, 2, 27, 1),
    Sketcher.Constraint("Coincident", 27, 2, 24, 1),
    Sketcher.Constraint("Coincident", 28, 2, 29, 1),
    Sketcher.Constraint("Coincident", 29, 2, 30, 1),
    Sketcher.Constraint("Coincident", 30, 2, 31, 1),
    Sketcher.Constraint("Coincident", 31, 2, 28, 1),
    Sketcher.Constraint("Coincident", 32, 2, 33, 1),
    Sketcher.Constraint("Coincident", 33, 2, 34, 1),
    Sketcher.Constraint("Coincident", 34, 2, 35, 1),
    Sketcher.Constraint("Coincident", 35, 2, 32, 1),
    Sketcher.Constraint("Vertical", 0),
    Sketcher.Constraint("Horizontal", 1),
    Sketcher.Constraint("Vertical", 2),
    Sketcher.Constraint("Horizontal", 3),
    Sketcher.Constraint("Vertical", 4),
    Sketcher.Constraint("Horizontal", 5),
    Sketcher.Constraint("Vertical", 6),
    Sketcher.Constraint("Horizontal", 7),
    Sketcher.Constraint("Vertical", 8),
    Sketcher.Constraint("Horizontal", 9),
    Sketcher.Constraint("Vertical", 10),
    Sketcher.Constraint("Horizontal", 11),
    Sketcher.Constraint("Vertical", 12),
    Sketcher.Constraint("Horizontal", 13),
    Sketcher.Constraint("Vertical", 14),
    Sketcher.Constraint("Horizontal", 15),
    Sketcher.Constraint("Vertical", 16),
    Sketcher.Constraint("Horizontal", 17),
    Sketcher.Constraint("Vertical", 18),
    Sketcher.Constraint("Horizontal", 19),
    Sketcher.Constraint("Vertical", 20),
    Sketcher.Constraint("Horizontal", 21),
    Sketcher.Constraint("Vertical", 22),
    Sketcher.Constraint("Horizontal", 23),
    Sketcher.Constraint("Vertical", 24),
    Sketcher.Constraint("Horizontal", 25),
    Sketcher.Constraint("Vertical", 26),
    Sketcher.Constraint("Horizontal", 27),
    Sketcher.Constraint("Vertical", 28),
    Sketcher.Constraint("Horizontal", 29),
    Sketcher.Constraint("Vertical", 30),
    Sketcher.Constraint("Horizontal", 31),
    Sketcher.Constraint("Horizontal", 32),
    Sketcher.Constraint("Vertical", 33),
    Sketcher.Constraint("Horizontal", 34),
    Sketcher.Constraint("Vertical", 35),
    Sketcher.Constraint("PointOnObject", 0, 2, -2),
    Sketcher.Constraint("Horizontal", 1, 2, 4, 2),
    Sketcher.Constraint("Horizontal", 3, 2, 6, 2),
    Sketcher.Constraint("Horizontal", 5, 2, 8, 2),
    Sketcher.Constraint("Horizontal", 7, 2, 10, 2),
    Sketcher.Constraint("Horizontal", 9, 2, 12, 2),
    Sketcher.Constraint("Horizontal", 11, 2, 14, 2),
    Sketcher.Constraint("Horizontal", 13, 2, 16, 2),
    Sketcher.Constraint("Horizontal", 15, 2, 18, 2),
    Sketcher.Constraint("Horizontal", 17, 2, 20, 2),
    Sketcher.Constraint("Horizontal", 19, 2, 22, 2),
    Sketcher.Constraint("Horizontal", 21, 2, 24, 2),
    Sketcher.Constraint("Horizontal", 23, 2, 26, 2),
    Sketcher.Constraint("Horizontal", 25, 2, 28, 2),
    Sketcher.Constraint("Horizontal", 27, 2, 30, 2),
    Sketcher.Constraint("Horizontal", 29, 2, 32, 2),
    Sketcher.Constraint("Horizontal", 31, 2, 33, 2),
    Sketcher.Constraint("Equal", 3, 5),
    Sketcher.Constraint("Equal", 7, 9),
    Sketcher.Constraint("Equal", 11, 13),
    Sketcher.Constraint("Equal", 15, 17),
    Sketcher.Constraint("Equal", 19, 21),
    Sketcher.Constraint("Equal", 23, 25),
    Sketcher.Constraint("Equal", 27, 29),
    Sketcher.Constraint("Equal", 31, 32),
    Sketcher.Constraint("DistanceX", 1, 1, 1, 2, 15.0),
    Sketcher.Constraint("DistanceY", 0, 2, 0, 1, 6.0),
    Sketcher.Constraint("DistanceY", -1, 1, 0, 2, 117.0),
    Sketcher.Constraint("DistanceX", -1, 1, 4, 2, 30.0),
    Sketcher.Constraint("DistanceX", -1, 1, 8, 2, 60.0),
    Sketcher.Constraint("DistanceX", -1, 1, 12, 2, 90.0),
    Sketcher.Constraint("DistanceX", -1, 1, 16, 2, 120.0),
    Sketcher.Constraint("DistanceX", -1, 1, 20, 2, 150.0),
    Sketcher.Constraint("DistanceX", -1, 1, 24, 2, 180.0),
    Sketcher.Constraint("DistanceX", -1, 1, 28, 2, 240.0),
    Sketcher.Constraint("DistanceX", -1, 1, 32, 2, 225.0),
])
pocket1 = doc.addObject("PartDesign::Pocket", "Pocket")
body.addObject(pocket1)
pocket1.Profile = sketch2
pocket1.Type = "ThroughAll"

doc.recompute()
